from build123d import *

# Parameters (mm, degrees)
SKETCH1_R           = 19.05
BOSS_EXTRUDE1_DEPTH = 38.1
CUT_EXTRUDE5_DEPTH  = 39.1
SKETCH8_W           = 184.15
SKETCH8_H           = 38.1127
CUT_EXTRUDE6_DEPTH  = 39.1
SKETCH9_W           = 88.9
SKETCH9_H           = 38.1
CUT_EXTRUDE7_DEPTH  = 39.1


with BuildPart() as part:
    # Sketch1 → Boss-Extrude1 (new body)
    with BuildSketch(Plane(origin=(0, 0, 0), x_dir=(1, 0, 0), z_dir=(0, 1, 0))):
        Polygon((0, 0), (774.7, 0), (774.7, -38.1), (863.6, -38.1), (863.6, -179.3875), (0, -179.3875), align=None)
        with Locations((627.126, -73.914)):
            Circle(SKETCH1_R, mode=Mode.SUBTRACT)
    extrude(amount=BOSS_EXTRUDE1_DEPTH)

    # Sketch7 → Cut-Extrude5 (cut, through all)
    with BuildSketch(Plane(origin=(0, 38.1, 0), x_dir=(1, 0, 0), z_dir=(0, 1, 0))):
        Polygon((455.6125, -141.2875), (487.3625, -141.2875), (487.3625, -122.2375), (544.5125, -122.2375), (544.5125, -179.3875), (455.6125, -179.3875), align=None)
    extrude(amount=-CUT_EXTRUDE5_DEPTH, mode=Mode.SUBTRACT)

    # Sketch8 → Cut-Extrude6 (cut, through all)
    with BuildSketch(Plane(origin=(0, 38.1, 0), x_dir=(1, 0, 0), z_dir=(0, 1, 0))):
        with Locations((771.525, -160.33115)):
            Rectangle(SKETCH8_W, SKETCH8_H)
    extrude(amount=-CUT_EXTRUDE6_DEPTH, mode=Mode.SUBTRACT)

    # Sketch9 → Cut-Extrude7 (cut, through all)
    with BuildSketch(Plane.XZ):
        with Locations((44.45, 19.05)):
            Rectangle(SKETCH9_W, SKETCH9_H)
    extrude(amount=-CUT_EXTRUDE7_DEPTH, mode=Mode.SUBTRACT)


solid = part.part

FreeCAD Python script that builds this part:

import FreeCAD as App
import Part
import Sketcher

V = App.Vector
Q = App.Units.Quantity

doc = App.newDocument("Part")
body = doc.addObject("PartDesign::Body", "Body")

sketch1 = body.newObject("Sketcher::SketchObject", "Sketch")
sketch1.AttachmentSupport = (doc.getObject("XZ_Plane"), [""])
sketch1.MapMode = "FlatFace"
sketch1.addGeometry([
    Part.LineSegment(V(775, 0, 0), V(0, 0, 0)),
    Part.LineSegment(V(0, 0, 0), V(0, 179, 0)),
    Part.LineSegment(V(0, 179, 0), V(864, 179, 0)),
    Part.LineSegment(V(864, 179, 0), V(864, 38, 0)),
    Part.LineSegment(V(864, 38, 0), V(775, 38, 0)),
    Part.LineSegment(V(775, 38, 0), V(775, 0, 0)),
    Part.Circle(V(627, 74, 0), V(0, 0, 1), 19),
], False)
sketch1.addConstraint([
    Sketcher.Constraint("Coincident", 0, 2, 1, 1),
    Sketcher.Constraint("Coincident", 1, 2, 2, 1),
    Sketcher.Constraint("Coincident", 2, 2, 3, 1),
    Sketcher.Constraint("Coincident", 3, 2, 4, 1),
    Sketcher.Constraint("Coincident", 4, 2, 5, 1),
    Sketcher.Constraint("Coincident", 5, 2, 0, 1),
    Sketcher.Constraint("Horizontal", 0),
    Sketcher.Constraint("Vertical", 1),
    Sketcher.Constraint("Horizontal", 2),
    Sketcher.Constraint("Vertical", 3),
    Sketcher.Constraint("Horizontal", 4),
    Sketcher.Constraint("Vertical", 5),
    Sketcher.Constraint("Coincident", 0, 2, -1, 1),
    Sketcher.Constraint("Diameter", 6, Q("1.5 in")),
    Sketcher.Constraint("DistanceX", 2, 1, 2, 2, Q("34 in")),
    Sketcher.Constraint("DistanceX", 0, 2, 0, 1, Q("30.5 in")),
    Sketcher.Constraint("DistanceY", 5, 2, 5, 1, Q("1.5 in")),
    Sketcher.Constraint("DistanceY", 1, 1, 1, 2, Q("7.0625 in")),
    Sketcher.Constraint("DistanceX", -1, 1, 6, 3, Q("24.69 in")),
    Sketcher.Constraint("DistanceY", -1, 1, 6, 3, Q("2.91 in")),
])
pad1 = body.newObject("PartDesign::Pad", "Pad")
pad1.Profile = sketch1
pad1.Length = Q("1.5 in")
pad1.Reversed = True

sketch2 = body.newObject("Sketcher::SketchObject", "Sketch001")
sketch2.AttachmentSupport = (doc.getObject("XZ_Plane"), [""])
sketch2.MapMode = "FlatFace"
sketch2.AttachmentOffset = App.Placement(V(0, 0, -1.5 * 25.4), App.Rotation())
sketch2.addGeometry([
    Part.LineSegment(V(487, 141, 0), V(456, 141, 0)),
    Part.LineSegment(V(456, 141, 0), V(456, 179, 0)),
    Part.LineSegment(V(456, 179, 0), V(545, 179, 0)),
    Part.LineSegment(V(545, 179, 0), V(545, 122, 0)),
    Part.LineSegment(V(545, 122, 0), V(487, 122, 0)),
    Part.LineSegment(V(487, 122, 0), V(487, 141, 0)),
], False)
sketch2.addConstraint([
    Sketcher.Constraint("Coincident", 0, 2, 1, 1),
    Sketcher.Constraint("Coincident", 1, 2, 2, 1),
    Sketcher.Constraint("Coincident", 2, 2, 3, 1),
    Sketcher.Constraint("Coincident", 3, 2, 4, 1),
    Sketcher.Constraint("Coincident", 4, 2, 5, 1),
    Sketcher.Constraint("Coincident", 5, 2, 0, 1),
    Sketcher.Constraint("Horizontal", 0),
    Sketcher.Constraint("Vertical", 1),
    Sketcher.Constraint("Horizontal", 2),
    Sketcher.Constraint("Vertical", 3),
    Sketcher.Constraint("Horizontal", 4),
    Sketcher.Constraint("Vertical", 5),
    Sketcher.Constraint("Equal", 4, 3),
    Sketcher.Constraint("DistanceX", 2, 1, 2, 2, Q("3.5 in")),
    Sketcher.Constraint("DistanceY", 1, 1, 1, 2, Q("1.5 in")),
    Sketcher.Constraint("DistanceX", 0, 2, 0, 1, Q("1.25 in")),
    Sketcher.Constraint("DistanceX", -1, 1, 0, 2, Q("17.9375 in")),
    Sketcher.Constraint("DistanceY", -1, 1, 0, 2, Q("5.5625 in")),
])
pocket1 = body.newObject("PartDesign::Pocket", "Pocket")
pocket1.Profile = sketch2
pocket1.Type = "ThroughAll"
pocket1.Reversed = True

sketch3 = body.newObject("Sketcher::SketchObject", "Sketch002")
sketch3.AttachmentSupport = (doc.getObject("XZ_Plane"), [""])
sketch3.MapMode = "FlatFace"
sketch3.AttachmentOffset = App.Placement(V(0, 0, -1.5 * 25.4), App.Rotation())
sketch3.addGeometry([
    Part.LineSegment(V(679, 141, 0), V(679, 179, 0)),
    Part.LineSegment(V(679, 179, 0), V(864, 179, 0)),
    Part.LineSegment(V(864, 179, 0), V(864, 141, 0)),
    Part.LineSegment(V(864, 141, 0), V(679, 141, 0)),
], False)
sketch3.addConstraint([
    Sketcher.Constraint("Coincident", 0, 2, 1, 1),
    Sketcher.Constraint("Coincident", 1, 2, 2, 1),
    Sketcher.Constraint("Coincident", 2, 2, 3, 1),
    Sketcher.Constraint("Coincident", 3, 2, 0, 1),
    Sketcher.Constraint("Vertical", 0),
    Sketcher.Constraint("Horizontal", 1),
    Sketcher.Constraint("Vertical", 2),
    Sketcher.Constraint("Horizontal", 3),
    Sketcher.Constraint("DistanceX", -1, 1, 1, 2, Q("34 in")),
    Sketcher.Constraint("DistanceX", 1, 1, 1, 2, Q("7.25 in")),
    Sketcher.Constraint("DistanceY", 0, 1, 0, 2, Q("1.5005 in")),
    Sketcher.Constraint("DistanceY", -1, 1, 0, 2, Q("7.0625 in")),
])
pocket2 = body.newObject("PartDesign::Pocket", "Pocket001")
pocket2.Profile = sketch3
pocket2.Type = "ThroughAll"
pocket2.Reversed = True

sketch4 = body.newObject("Sketcher::SketchObject", "Sketch003")
sketch4.AttachmentSupport = (doc.getObject("XZ_Plane"), [""])
sketch4.MapMode = "FlatFace"
sketch4.addGeometry([
    Part.LineSegment(V(0, 38, 0), V(0, 0, 0)),
    Part.LineSegment(V(0, 0, 0), V(89, 0, 0)),
    Part.LineSegment(V(89, 0, 0), V(89, 38, 0)),
    Part.LineSegment(V(89, 38, 0), V(0, 38, 0)),
], False)
sketch4.addConstraint([
    Sketcher.Constraint("Coincident", 0, 2, 1, 1),
    Sketcher.Constraint("Coincident", 1, 2, 2, 1),
    Sketcher.Constraint("Coincident", 2, 2, 3, 1),
    Sketcher.Constraint("Coincident", 3, 2, 0, 1),
    Sketcher.Constraint("Vertical", 0),
    Sketcher.Constraint("Horizontal", 1),
    Sketcher.Constraint("Vertical", 2),
    Sketcher.Constraint("Horizontal", 3),
    Sketcher.Constraint("Coincident", 0, 2, -1, 1),
    Sketcher.Constraint("DistanceX", 1, 1, 1, 2, Q("3.5 in")),
    Sketcher.Constraint("DistanceY", 0, 2, 0, 1, Q("1.5 in")),
])
pocket3 = body.newObject("PartDesign::Pocket", "Pocket002")
pocket3.Profile = sketch4
pocket3.Type = "ThroughAll"

doc.recompute()
